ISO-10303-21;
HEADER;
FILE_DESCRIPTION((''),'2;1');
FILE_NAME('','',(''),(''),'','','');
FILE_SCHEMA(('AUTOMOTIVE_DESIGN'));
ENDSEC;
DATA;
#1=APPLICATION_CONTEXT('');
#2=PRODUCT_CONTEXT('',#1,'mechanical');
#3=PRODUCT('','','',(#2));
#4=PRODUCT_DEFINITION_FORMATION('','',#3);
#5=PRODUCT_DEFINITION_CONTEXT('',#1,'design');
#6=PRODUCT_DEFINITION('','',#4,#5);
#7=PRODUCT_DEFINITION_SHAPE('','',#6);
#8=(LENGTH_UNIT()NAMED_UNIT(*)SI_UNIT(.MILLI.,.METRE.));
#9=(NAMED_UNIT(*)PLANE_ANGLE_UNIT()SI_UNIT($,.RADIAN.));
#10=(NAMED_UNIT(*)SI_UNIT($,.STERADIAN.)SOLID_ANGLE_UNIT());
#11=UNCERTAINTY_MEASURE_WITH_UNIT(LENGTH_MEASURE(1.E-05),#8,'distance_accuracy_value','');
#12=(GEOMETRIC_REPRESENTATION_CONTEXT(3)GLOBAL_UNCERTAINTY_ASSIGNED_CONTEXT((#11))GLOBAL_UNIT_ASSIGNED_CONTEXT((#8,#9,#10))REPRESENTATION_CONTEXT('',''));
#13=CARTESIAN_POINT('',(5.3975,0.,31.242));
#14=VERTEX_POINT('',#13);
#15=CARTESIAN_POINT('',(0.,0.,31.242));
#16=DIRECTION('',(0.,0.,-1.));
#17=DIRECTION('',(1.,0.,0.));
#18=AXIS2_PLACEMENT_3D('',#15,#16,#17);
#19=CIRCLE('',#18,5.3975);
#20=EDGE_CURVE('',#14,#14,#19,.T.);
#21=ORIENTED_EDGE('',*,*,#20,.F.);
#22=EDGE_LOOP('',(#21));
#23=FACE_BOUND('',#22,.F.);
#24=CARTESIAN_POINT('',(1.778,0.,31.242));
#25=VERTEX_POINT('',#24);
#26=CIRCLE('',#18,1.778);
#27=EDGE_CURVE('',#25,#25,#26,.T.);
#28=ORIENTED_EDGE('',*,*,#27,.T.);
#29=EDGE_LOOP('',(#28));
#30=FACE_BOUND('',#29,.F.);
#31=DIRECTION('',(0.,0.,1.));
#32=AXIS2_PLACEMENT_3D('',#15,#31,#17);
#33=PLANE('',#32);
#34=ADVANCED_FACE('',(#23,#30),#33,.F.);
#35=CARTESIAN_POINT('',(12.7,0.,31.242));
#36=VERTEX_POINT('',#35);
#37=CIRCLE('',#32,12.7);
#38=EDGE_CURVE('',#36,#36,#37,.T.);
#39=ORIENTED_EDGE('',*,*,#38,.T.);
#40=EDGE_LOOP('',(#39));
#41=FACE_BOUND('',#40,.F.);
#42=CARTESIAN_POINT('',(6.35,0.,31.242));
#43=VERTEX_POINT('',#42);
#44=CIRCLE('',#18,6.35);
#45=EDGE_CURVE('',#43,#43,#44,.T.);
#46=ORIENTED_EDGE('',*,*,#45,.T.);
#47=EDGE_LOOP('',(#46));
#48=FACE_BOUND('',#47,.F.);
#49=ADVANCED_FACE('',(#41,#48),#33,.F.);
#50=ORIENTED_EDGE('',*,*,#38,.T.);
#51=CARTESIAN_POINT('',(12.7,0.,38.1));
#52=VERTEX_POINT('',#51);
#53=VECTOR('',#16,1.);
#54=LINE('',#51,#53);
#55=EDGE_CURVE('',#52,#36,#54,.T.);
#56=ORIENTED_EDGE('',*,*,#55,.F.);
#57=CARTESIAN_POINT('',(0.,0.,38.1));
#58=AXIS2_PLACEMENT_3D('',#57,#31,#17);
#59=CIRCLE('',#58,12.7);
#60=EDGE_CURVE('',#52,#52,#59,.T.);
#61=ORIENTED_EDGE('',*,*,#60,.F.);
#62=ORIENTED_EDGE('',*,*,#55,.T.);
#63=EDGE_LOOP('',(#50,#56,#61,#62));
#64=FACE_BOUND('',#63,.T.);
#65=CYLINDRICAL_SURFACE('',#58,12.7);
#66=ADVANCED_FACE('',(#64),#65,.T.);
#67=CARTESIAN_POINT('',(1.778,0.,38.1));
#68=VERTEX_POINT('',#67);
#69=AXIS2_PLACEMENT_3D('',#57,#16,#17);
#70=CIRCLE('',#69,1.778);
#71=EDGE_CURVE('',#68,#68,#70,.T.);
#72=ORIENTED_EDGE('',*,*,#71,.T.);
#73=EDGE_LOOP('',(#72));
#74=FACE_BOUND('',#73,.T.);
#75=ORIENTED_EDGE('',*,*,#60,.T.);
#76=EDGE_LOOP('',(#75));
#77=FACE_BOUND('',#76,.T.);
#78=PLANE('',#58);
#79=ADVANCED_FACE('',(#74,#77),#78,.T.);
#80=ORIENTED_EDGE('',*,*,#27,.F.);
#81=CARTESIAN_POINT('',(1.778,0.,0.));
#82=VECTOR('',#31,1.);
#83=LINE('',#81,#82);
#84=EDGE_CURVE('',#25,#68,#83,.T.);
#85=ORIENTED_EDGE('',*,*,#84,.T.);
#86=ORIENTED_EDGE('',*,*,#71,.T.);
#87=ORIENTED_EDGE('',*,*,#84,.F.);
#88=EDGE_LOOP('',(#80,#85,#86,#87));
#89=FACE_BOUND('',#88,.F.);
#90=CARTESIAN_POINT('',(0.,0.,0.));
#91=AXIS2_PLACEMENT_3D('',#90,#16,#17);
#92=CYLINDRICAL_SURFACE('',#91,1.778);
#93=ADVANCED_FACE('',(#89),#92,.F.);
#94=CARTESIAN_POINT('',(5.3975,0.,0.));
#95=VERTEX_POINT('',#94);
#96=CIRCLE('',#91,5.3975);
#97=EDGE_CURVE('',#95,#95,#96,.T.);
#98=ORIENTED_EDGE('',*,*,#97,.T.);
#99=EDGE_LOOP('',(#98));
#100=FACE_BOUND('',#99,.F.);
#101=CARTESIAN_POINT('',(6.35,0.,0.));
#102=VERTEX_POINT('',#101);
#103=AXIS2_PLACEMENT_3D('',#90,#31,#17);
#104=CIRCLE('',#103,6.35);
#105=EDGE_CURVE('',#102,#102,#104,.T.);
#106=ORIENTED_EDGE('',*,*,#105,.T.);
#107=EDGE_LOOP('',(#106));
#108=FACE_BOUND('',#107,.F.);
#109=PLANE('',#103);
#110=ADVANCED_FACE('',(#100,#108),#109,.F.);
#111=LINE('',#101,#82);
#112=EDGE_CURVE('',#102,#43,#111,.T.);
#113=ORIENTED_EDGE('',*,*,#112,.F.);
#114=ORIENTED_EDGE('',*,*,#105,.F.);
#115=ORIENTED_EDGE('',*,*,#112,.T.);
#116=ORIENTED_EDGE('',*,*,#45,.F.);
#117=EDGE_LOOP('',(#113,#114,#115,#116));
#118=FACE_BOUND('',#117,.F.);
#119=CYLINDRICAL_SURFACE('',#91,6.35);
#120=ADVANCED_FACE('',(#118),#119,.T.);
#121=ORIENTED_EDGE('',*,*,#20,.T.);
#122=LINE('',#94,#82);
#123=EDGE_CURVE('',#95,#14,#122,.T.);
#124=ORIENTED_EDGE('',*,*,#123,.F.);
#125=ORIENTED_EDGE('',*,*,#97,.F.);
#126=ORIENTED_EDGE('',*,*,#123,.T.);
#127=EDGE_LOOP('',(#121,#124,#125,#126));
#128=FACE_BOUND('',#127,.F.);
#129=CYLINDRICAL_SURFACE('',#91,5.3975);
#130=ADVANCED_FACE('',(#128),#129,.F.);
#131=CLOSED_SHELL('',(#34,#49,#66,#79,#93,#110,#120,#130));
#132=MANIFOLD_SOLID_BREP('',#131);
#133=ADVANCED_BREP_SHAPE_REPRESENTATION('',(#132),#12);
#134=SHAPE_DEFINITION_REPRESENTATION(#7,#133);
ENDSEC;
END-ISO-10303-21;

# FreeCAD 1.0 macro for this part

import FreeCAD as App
import Part
import Sketcher

V = App.Vector
Q = App.Units.Quantity

doc = App.newDocument("Part")
params = doc.addObject("Spreadsheet::Sheet", "Params")
for row, (alias, value) in enumerate([
    ("sketch1_diameter", "0.5 in"),
    ("pad1_length", "1.5 in"),
    ("sketch2_diameter", "0.425 in"),
    ("pocket1_length", "1.28 in"),
    ("sketch3_diameter", "1 in"),
    ("pad2_length", "0.27 in"),
    ("sketch4_diameter", "0.14 in"),
    ("pocket2_length", "1.98 in"),
], start=1):
    params.set(f"A{row}", alias)
    params.set(f"B{row}", "=" + value)
    params.setAlias(f"B{row}", alias)

body = doc.addObject("PartDesign::Body", "Body")

# Sketch on XY plane
sketch1 = doc.addObject("Sketcher::SketchObject", "Sketch")
body.addObject(sketch1)
sketch1.AttachmentSupport = (doc.XY_Plane, [""])
sketch1.MapMode = "FlatFace"
sketch1.addGeometry(Part.Circle(V(0, 0, 0), V(0, 0, 1), 6), False)
sketch1.addConstraint([
    Sketcher.Constraint("Coincident", 0, 3, -1, 1),
    Sketcher.Constraint("Diameter", 0, Q("0.5 in")),
])
sketch1.setExpression("Constraints[1]", "Params.sketch1_diameter")
pad1 = doc.addObject("PartDesign::Pad", "Pad")
body.addObject(pad1)
pad1.Profile = sketch1
pad1.setExpression("Length", "Params.pad1_length")

# Sketch on XY plane
sketch2 = doc.addObject("Sketcher::SketchObject", "Sketch001")
body.addObject(sketch2)
sketch2.AttachmentSupport = (doc.XY_Plane, [""])
sketch2.MapMode = "FlatFace"
sketch2.addGeometry(Part.Circle(V(0, 0, 0), V(0, 0, 1), 5), False)
sketch2.addConstraint([
    Sketcher.Constraint("Coincident", 0, 3, -1, 1),
    Sketcher.Constraint("Diameter", 0, Q("0.425 in")),
])
sketch2.setExpression("Constraints[1]", "Params.sketch2_diameter")
pocket1 = doc.addObject("PartDesign::Pocket", "Pocket")
body.addObject(pocket1)
pocket1.Profile = sketch2
pocket1.setExpression("Length", "Params.pocket1_length")
pocket1.Reversed = True

# Sketch on XY plane
sketch3 = doc.addObject("Sketcher::SketchObject", "Sketch002")
body.addObject(sketch3)
sketch3.AttachmentSupport = (doc.XY_Plane, [""])
sketch3.MapMode = "FlatFace"
sketch3.AttachmentOffset = App.Placement(V(0, 0, 1.5 * 25.4), App.Rotation())
sketch3.addGeometry(Part.Circle(V(0, 0, 0), V(0, 0, 1), 13), False)
sketch3.addConstraint([
    Sketcher.Constraint("Coincident", 0, 3, -1, 1),
    Sketcher.Constraint("Diameter", 0, Q("1 in")),
])
sketch3.setExpression("Constraints[1]", "Params.sketch3_diameter")
pad2 = doc.addObject("PartDesign::Pad", "Pad001")
body.addObject(pad2)
pad2.Profile = sketch3
pad2.setExpression("Length", "Params.pad2_length")
pad2.Reversed = True

# Sketch on XY plane
sketch4 = doc.addObject("Sketcher::SketchObject", "Sketch003")
body.addObject(sketch4)
sketch4.AttachmentSupport = (doc.XY_Plane, [""])
sketch4.MapMode = "FlatFace"
sketch4.addGeometry(Part.Circle(V(0, 0, 0), V(0, 0, 1), 1.8), False)
sketch4.addConstraint([
    Sketcher.Constraint("Coincident", 0, 3, -1, 1),
    Sketcher.Constraint("Diameter", 0, Q("0.14 in")),
])
sketch4.setExpression("Constraints[1]", "Params.sketch4_diameter")
pocket2 = doc.addObject("PartDesign::Pocket", "Pocket001")
body.addObject(pocket2)
pocket2.Profile = sketch4
pocket2.setExpression("Length", "Params.pocket2_length")
pocket2.Reversed = True

doc.recompute()
